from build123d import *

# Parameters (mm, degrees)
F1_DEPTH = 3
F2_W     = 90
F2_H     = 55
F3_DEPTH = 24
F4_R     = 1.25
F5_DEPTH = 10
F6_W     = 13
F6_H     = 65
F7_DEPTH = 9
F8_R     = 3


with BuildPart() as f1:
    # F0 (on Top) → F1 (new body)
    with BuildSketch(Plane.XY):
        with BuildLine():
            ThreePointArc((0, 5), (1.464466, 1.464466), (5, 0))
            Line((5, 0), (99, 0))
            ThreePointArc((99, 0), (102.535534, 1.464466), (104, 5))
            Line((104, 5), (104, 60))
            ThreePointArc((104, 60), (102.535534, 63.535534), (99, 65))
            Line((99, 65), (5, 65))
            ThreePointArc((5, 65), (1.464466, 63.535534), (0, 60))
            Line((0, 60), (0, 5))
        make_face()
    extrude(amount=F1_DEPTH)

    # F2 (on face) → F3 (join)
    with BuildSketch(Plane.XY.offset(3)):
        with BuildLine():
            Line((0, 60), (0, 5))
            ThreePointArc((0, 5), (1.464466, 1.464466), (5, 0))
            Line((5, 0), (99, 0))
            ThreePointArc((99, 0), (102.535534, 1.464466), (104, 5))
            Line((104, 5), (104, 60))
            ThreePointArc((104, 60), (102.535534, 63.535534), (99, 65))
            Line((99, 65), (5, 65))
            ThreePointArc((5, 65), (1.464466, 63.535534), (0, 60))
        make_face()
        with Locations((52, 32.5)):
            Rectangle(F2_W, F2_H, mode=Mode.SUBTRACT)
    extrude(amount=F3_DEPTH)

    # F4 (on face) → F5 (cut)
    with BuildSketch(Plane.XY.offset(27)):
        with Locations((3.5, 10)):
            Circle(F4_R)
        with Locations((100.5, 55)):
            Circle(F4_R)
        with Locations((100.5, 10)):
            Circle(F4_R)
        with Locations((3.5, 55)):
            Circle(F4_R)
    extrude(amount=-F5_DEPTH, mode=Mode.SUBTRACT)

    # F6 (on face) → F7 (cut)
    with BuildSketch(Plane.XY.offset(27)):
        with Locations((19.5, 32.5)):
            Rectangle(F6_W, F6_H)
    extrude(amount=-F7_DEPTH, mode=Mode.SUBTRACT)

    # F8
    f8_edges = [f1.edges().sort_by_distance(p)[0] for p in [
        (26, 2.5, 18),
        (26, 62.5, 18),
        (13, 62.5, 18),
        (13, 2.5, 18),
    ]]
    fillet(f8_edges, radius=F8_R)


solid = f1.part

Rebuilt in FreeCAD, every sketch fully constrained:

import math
import FreeCAD as App
import Part
import Sketcher
from FreeCAD import Vector


def edges_at(feature, points):
    """Names of the edges that pass closest to the given points."""
    edges = feature.Shape.Edges
    near = lambda p: min(range(len(edges)), key=lambda i: edges[i].distToShape(Part.Vertex(*p))[0])
    return sorted({f"Edge{near(p) + 1}" for p in points})

doc = App.newDocument("Part")
body = doc.addObject("PartDesign::Body", "Body")

sketch1 = doc.addObject("Sketcher::SketchObject", "Sketch")
body.addObject(sketch1)
sketch1.AttachmentSupport = (doc.XY_Plane, [""])
sketch1.MapMode = "FlatFace"
sketch1.addGeometry(Part.ArcOfCircle(Part.Circle(Vector(5, 5, 0), Vector(0, 0, 1), 5), math.radians(179.999996), math.radians(270.000004)), False)
sketch1.addGeometry(Part.LineSegment(Vector(5, 0, 0), Vector(99, 0, 0)), False)
sketch1.addGeometry(Part.ArcOfCircle(Part.Circle(Vector(99, 5, 0), Vector(0, 0, 1), 5), math.radians(-90.000004), math.radians(0.000004)), False)
sketch1.addGeometry(Part.LineSegment(Vector(104, 5, 0), Vector(104, 60, 0)), False)
sketch1.addGeometry(Part.ArcOfCircle(Part.Circle(Vector(99, 60, 0), Vector(0, 0, 1), 5), math.radians(-0.000004), math.radians(90.000004)), False)
sketch1.addGeometry(Part.LineSegment(Vector(99, 65, 0), Vector(5, 65, 0)), False)
sketch1.addGeometry(Part.ArcOfCircle(Part.Circle(Vector(5, 60, 0), Vector(0, 0, 1), 5), math.radians(89.999996), math.radians(180.000004)), False)
sketch1.addGeometry(Part.LineSegment(Vector(0, 60, 0), Vector(0, 5, 0)), False)
sketch1.addConstraint(Sketcher.Constraint("Tangent", 0, 2, 1, 1))
sketch1.addConstraint(Sketcher.Constraint("Tangent", 1, 2, 2, 1))
sketch1.addConstraint(Sketcher.Constraint("Tangent", 2, 2, 3, 1))
sketch1.addConstraint(Sketcher.Constraint("Tangent", 3, 2, 4, 1))
sketch1.addConstraint(Sketcher.Constraint("Tangent", 4, 2, 5, 1))
sketch1.addConstraint(Sketcher.Constraint("Tangent", 5, 2, 6, 1))
sketch1.addConstraint(Sketcher.Constraint("Tangent", 6, 2, 7, 1))
sketch1.addConstraint(Sketcher.Constraint("Tangent", 7, 2, 0, 1))
sketch1.addConstraint(Sketcher.Constraint("Horizontal", 1))
sketch1.addConstraint(Sketcher.Constraint("Vertical", 3))
sketch1.addConstraint(Sketcher.Constraint("Horizontal", 5))
sketch1.addConstraint(Sketcher.Constraint("Vertical", 7))
sketch1.addConstraint(Sketcher.Constraint("Equal", 0, 2))
sketch1.addConstraint(Sketcher.Constraint("Equal", 2, 4))
sketch1.addConstraint(Sketcher.Constraint("Equal", 4, 6))
sketch1.addConstraint(Sketcher.Constraint("PointOnObject", 0, 2, -1))
sketch1.addConstraint(Sketcher.Constraint("PointOnObject", 6, 2, -2))
sketch1.addConstraint(Sketcher.Constraint("Radius", 0, 5.0))
sketch1.addConstraint(Sketcher.Constraint("DistanceX", 1, 1, 1, 2, 94.0))
sketch1.addConstraint(Sketcher.Constraint("DistanceY", 3, 1, 3, 2, 55.0))
pad1 = doc.addObject("PartDesign::Pad", "Pad")
body.addObject(pad1)
pad1.Profile = sketch1
pad1.Length = 3

sketch2 = doc.addObject("Sketcher::SketchObject", "Sketch001")
body.addObject(sketch2)
sketch2.AttachmentSupport = (doc.XY_Plane, [""])
sketch2.MapMode = "FlatFace"
sketch2.AttachmentOffset = App.Placement(Vector(0, 0, 3), App.Rotation())
sketch2.addGeometry(Part.LineSegment(Vector(0, 60, 0), Vector(0, 5, 0)), False)
sketch2.addGeometry(Part.ArcOfCircle(Part.Circle(Vector(5, 5, 0), Vector(0, 0, 1), 5), math.radians(179.999996), math.radians(270.000004)), False)
sketch2.addGeometry(Part.LineSegment(Vector(5, 0, 0), Vector(99, 0, 0)), False)
sketch2.addGeometry(Part.ArcOfCircle(Part.Circle(Vector(99, 5, 0), Vector(0, 0, 1), 5), math.radians(-90.000004), math.radians(0.000004)), False)
sketch2.addGeometry(Part.LineSegment(Vector(104, 5, 0), Vector(104, 60, 0)), False)
sketch2.addGeometry(Part.ArcOfCircle(Part.Circle(Vector(99, 60, 0), Vector(0, 0, 1), 5), math.radians(-0.000004), math.radians(90.000004)), False)
sketch2.addGeometry(Part.LineSegment(Vector(99, 65, 0), Vector(5, 65, 0)), False)
sketch2.addGeometry(Part.ArcOfCircle(Part.Circle(Vector(5, 60, 0), Vector(0, 0, 1), 5), math.radians(89.999996), math.radians(180.000004)), False)
sketch2.addGeometry(Part.LineSegment(Vector(97, 5, 0), Vector(7, 5, 0)), False)
sketch2.addGeometry(Part.LineSegment(Vector(7, 5, 0), Vector(7, 60, 0)), False)
sketch2.addGeometry(Part.LineSegment(Vector(7, 60, 0), Vector(97, 60, 0)), False)
sketch2.addGeometry(Part.LineSegment(Vector(97, 60, 0), Vector(97, 5, 0)), False)
sketch2.addConstraint(Sketcher.Constraint("Tangent", 0, 2, 1, 1))
sketch2.addConstraint(Sketcher.Constraint("Tangent", 1, 2, 2, 1))
sketch2.addConstraint(Sketcher.Constraint("Tangent", 2, 2, 3, 1))
sketch2.addConstraint(Sketcher.Constraint("Tangent", 3, 2, 4, 1))
sketch2.addConstraint(Sketcher.Constraint("Tangent", 4, 2, 5, 1))
sketch2.addConstraint(Sketcher.Constraint("Tangent", 5, 2, 6, 1))
sketch2.addConstraint(Sketcher.Constraint("Tangent", 6, 2, 7, 1))
sketch2.addConstraint(Sketcher.Constraint("Tangent", 7, 2, 0, 1))
sketch2.addConstraint(Sketcher.Constraint("Coincident", 8, 2, 9, 1))
sketch2.addConstraint(Sketcher.Constraint("Coincident", 9, 2, 10, 1))
sketch2.addConstraint(Sketcher.Constraint("Coincident", 10, 2, 11, 1))
sketch2.addConstraint(Sketcher.Constraint("Coincident", 11, 2, 8, 1))
sketch2.addConstraint(Sketcher.Constraint("Vertical", 0))
sketch2.addConstraint(Sketcher.Constraint("Horizontal", 2))
sketch2.addConstraint(Sketcher.Constraint("Vertical", 4))
sketch2.addConstraint(Sketcher.Constraint("Horizontal", 6))
sketch2.addConstraint(Sketcher.Constraint("Horizontal", 8))
sketch2.addConstraint(Sketcher.Constraint("Vertical", 9))
sketch2.addConstraint(Sketcher.Constraint("Horizontal", 10))
sketch2.addConstraint(Sketcher.Constraint("Vertical", 11))
sketch2.addConstraint(Sketcher.Constraint("Equal", 1, 3))
sketch2.addConstraint(Sketcher.Constraint("Equal", 3, 5))
sketch2.addConstraint(Sketcher.Constraint("Equal", 5, 7))
sketch2.addConstraint(Sketcher.Constraint("PointOnObject", 0, 2, -2))
sketch2.addConstraint(Sketcher.Constraint("PointOnObject", 1, 2, -1))
sketch2.addConstraint(Sketcher.Constraint("Horizontal", 3, 2, 8, 2))
sketch2.addConstraint(Sketcher.Constraint("Horizontal", 7, 2, 9, 2))
sketch2.addConstraint(Sketcher.Constraint("Radius", 1, 5.0))
sketch2.addConstraint(Sketcher.Constraint("DistanceX", 2, 1, 2, 2, 94.0))
sketch2.addConstraint(Sketcher.Constraint("DistanceX", 8, 2, 8, 1, 90.0))
sketch2.addConstraint(Sketcher.Constraint("DistanceY", 0, 2, 0, 1, 55.0))
sketch2.addConstraint(Sketcher.Constraint("DistanceX", -1, 1, 8, 2, 7.0))
pad2 = doc.addObject("PartDesign::Pad", "Pad001")
body.addObject(pad2)
pad2.Profile = sketch2
pad2.Length = 24

sketch3 = doc.addObject("Sketcher::SketchObject", "Sketch002")
body.addObject(sketch3)
sketch3.AttachmentSupport = (doc.XY_Plane, [""])
sketch3.MapMode = "FlatFace"
sketch3.AttachmentOffset = App.Placement(Vector(0, 0, 27), App.Rotation())
sketch3.addGeometry(Part.Circle(Vector(3.5, 10, 0), Vector(0, 0, 1), 1.25), False)
sketch3.addGeometry(Part.Circle(Vector(100.5, 55, 0), Vector(0, 0, 1), 1.25), False)
sketch3.addGeometry(Part.Circle(Vector(100.5, 10, 0), Vector(0, 0, 1), 1.25), False)
sketch3.addGeometry(Part.Circle(Vector(3.5, 55, 0), Vector(0, 0, 1), 1.25), False)
sketch3.addConstraint(Sketcher.Constraint("Equal", 0, 1))
sketch3.addConstraint(Sketcher.Constraint("Equal", 1, 2))
sketch3.addConstraint(Sketcher.Constraint("Equal", 2, 3))
sketch3.addConstraint(Sketcher.Constraint("Horizontal", 0, 3, 2, 3))
sketch3.addConstraint(Sketcher.Constraint("Horizontal", 1, 3, 3, 3))
sketch3.addConstraint(Sketcher.Constraint("Vertical", 1, 3, 2, 3))
sketch3.addConstraint(Sketcher.Constraint("Vertical", 0, 3, 3, 3))
sketch3.addConstraint(Sketcher.Constraint("Diameter", 0, 2.5))
sketch3.addConstraint(Sketcher.Constraint("DistanceY", -1, 1, 0, 3, 10.0))
sketch3.addConstraint(Sketcher.Constraint("DistanceY", -1, 1, 1, 3, 55.0))
sketch3.addConstraint(Sketcher.Constraint("DistanceX", 0, 3, 1, 3, 97.0))
sketch3.addConstraint(Sketcher.Constraint("DistanceX", -1, 1, 0, 3, 3.5))
pocket1 = doc.addObject("PartDesign::Pocket", "Pocket")
body.addObject(pocket1)
pocket1.Profile = sketch3
pocket1.Length = 10

sketch4 = doc.addObject("Sketcher::SketchObject", "Sketch003")
body.addObject(sketch4)
sketch4.AttachmentSupport = (doc.XY_Plane, [""])
sketch4.MapMode = "FlatFace"
sketch4.AttachmentOffset = App.Placement(Vector(0, 0, 27), App.Rotation())
sketch4.addGeometry(Part.LineSegment(Vector(13, 65, 0), Vector(13, 0, 0)), False)
sketch4.addGeometry(Part.LineSegment(Vector(13, 0, 0), Vector(26, 0, 0)), False)
sketch4.addGeometry(Part.LineSegment(Vector(26, 0, 0), Vector(26, 65, 0)), False)
sketch4.addGeometry(Part.LineSegment(Vector(26, 65, 0), Vector(13, 65, 0)), False)
sketch4.addConstraint(Sketcher.Constraint("Coincident", 0, 2, 1, 1))
sketch4.addConstraint(Sketcher.Constraint("Coincident", 1, 2, 2, 1))
sketch4.addConstraint(Sketcher.Constraint("Coincident", 2, 2, 3, 1))
sketch4.addConstraint(Sketcher.Constraint("Coincident", 3, 2, 0, 1))
sketch4.addConstraint(Sketcher.Constraint("Vertical", 0))
sketch4.addConstraint(Sketcher.Constraint("Horizontal", 1))
sketch4.addConstraint(Sketcher.Constraint("Vertical", 2))
sketch4.addConstraint(Sketcher.Constraint("Horizontal", 3))
sketch4.addConstraint(Sketcher.Constraint("PointOnObject", 0, 2, -1))
sketch4.addConstraint(Sketcher.Constraint("DistanceX", 1, 1, 1, 2, 13.0))
sketch4.addConstraint(Sketcher.Constraint("DistanceY", 0, 2, 0, 1, 65.0))
sketch4.addConstraint(Sketcher.Constraint("DistanceX", -1, 1, 0, 2, 13.0))
pocket2 = doc.addObject("PartDesign::Pocket", "Pocket001")
body.addObject(pocket2)
pocket2.Profile = sketch4
pocket2.Length = 9
doc.recompute()

fillet = doc.addObject("PartDesign::Fillet", "Fillet")
body.addObject(fillet)
fillet.Base = (pocket2, edges_at(pocket2, [
    (26, 2.5, 18),
    (26, 62.5, 18),
    (13, 62.5, 18),
    (13, 2.5, 18),
]))
fillet.Radius = 3

doc.recompute()
